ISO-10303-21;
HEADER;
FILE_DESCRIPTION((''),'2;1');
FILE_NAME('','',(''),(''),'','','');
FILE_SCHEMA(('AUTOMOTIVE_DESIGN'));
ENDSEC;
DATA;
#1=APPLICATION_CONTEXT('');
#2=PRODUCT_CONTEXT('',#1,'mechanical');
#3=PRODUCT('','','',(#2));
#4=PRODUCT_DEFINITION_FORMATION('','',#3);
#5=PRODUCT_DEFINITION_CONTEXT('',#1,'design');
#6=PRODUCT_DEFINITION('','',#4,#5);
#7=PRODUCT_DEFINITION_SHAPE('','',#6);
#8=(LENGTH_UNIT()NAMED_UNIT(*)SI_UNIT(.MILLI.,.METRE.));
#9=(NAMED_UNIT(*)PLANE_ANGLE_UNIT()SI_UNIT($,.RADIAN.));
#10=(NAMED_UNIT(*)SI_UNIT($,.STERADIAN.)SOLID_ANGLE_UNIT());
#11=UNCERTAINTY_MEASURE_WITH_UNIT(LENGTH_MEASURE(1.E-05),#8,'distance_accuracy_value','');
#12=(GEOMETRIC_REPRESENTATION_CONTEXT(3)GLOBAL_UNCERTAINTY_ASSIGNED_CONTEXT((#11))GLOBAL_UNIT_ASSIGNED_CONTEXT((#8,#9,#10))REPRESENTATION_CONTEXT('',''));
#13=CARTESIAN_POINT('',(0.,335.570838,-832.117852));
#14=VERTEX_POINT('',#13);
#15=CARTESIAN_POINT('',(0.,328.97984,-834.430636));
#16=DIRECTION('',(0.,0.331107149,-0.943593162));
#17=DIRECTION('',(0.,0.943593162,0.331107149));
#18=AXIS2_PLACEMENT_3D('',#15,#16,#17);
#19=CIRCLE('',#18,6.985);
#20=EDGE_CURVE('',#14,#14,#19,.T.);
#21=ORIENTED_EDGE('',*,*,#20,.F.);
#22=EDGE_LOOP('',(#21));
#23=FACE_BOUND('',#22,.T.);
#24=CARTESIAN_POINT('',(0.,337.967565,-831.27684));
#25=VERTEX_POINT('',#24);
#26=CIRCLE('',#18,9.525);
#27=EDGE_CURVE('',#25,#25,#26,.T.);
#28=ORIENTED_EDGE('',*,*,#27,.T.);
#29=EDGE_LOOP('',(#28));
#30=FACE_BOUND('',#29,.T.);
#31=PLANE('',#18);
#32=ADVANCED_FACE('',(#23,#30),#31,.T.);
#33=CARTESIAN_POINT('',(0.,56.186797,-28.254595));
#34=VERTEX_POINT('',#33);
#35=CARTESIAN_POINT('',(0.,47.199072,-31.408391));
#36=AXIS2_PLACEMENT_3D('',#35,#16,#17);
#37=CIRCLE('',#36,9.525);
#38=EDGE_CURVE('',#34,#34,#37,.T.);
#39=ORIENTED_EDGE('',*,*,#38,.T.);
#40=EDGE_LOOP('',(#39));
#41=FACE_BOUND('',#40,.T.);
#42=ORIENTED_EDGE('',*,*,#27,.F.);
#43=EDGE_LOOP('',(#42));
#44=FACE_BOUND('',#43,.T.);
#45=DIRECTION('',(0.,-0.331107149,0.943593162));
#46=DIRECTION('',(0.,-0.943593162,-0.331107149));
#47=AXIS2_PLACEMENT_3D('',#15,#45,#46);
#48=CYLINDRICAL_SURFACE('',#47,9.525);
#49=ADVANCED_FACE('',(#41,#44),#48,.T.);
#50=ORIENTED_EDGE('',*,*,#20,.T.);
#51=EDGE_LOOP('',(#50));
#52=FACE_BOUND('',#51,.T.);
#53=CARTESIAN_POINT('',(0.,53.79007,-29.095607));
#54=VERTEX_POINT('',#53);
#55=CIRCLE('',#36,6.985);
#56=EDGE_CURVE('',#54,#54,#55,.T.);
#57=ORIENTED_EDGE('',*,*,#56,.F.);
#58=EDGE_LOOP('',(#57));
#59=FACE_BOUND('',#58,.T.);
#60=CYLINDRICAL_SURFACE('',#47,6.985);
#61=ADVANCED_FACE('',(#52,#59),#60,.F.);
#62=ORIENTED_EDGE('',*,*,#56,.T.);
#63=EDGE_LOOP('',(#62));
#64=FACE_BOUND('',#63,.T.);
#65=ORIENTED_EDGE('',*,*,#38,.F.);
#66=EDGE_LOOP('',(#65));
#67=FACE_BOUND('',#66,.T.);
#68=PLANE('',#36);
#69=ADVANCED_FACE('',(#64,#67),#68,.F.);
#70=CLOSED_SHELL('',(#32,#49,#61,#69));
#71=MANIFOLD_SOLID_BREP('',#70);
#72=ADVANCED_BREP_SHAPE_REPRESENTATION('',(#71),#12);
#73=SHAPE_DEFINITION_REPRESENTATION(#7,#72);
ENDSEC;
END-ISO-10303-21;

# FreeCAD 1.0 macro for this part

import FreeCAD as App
import Part
import Sketcher

V = App.Vector
Q = App.Units.Quantity

doc = App.newDocument("Part")
body = doc.addObject("PartDesign::Body", "Body")

# Sketch on an angled plane
sketch1 = doc.addObject("Sketcher::SketchObject", "Sketch")
body.addObject(sketch1)
sketch1.Placement = App.Placement(V(0, 47.199072, -31.408391), App.Rotation(V(0, 0.943593162, 0.331107149), V(0.999999999, 0, 0), V(0, 0.331107149, -0.943593162), "ZXY"))
sketch1.addGeometry([
    Part.Circle(V(0, 0, 0), V(0, 0, 1), 9.525),
    Part.Circle(V(0, 0, 0), V(0, 0, 1), 6.985),
], False)
sketch1.addConstraint([
    Sketcher.Constraint("Coincident", 0, 3, -1, 1),
    Sketcher.Constraint("Coincident", 1, 3, -1, 1),
    Sketcher.Constraint("Diameter", 0, Q("0.75 in")),
    Sketcher.Constraint("Diameter", 1, Q("0.55 in")),
])
pad1 = doc.addObject("PartDesign::Pad", "Pad")
body.addObject(pad1)
pad1.Profile = sketch1
pad1.Length = 851.025926

doc.recompute()
